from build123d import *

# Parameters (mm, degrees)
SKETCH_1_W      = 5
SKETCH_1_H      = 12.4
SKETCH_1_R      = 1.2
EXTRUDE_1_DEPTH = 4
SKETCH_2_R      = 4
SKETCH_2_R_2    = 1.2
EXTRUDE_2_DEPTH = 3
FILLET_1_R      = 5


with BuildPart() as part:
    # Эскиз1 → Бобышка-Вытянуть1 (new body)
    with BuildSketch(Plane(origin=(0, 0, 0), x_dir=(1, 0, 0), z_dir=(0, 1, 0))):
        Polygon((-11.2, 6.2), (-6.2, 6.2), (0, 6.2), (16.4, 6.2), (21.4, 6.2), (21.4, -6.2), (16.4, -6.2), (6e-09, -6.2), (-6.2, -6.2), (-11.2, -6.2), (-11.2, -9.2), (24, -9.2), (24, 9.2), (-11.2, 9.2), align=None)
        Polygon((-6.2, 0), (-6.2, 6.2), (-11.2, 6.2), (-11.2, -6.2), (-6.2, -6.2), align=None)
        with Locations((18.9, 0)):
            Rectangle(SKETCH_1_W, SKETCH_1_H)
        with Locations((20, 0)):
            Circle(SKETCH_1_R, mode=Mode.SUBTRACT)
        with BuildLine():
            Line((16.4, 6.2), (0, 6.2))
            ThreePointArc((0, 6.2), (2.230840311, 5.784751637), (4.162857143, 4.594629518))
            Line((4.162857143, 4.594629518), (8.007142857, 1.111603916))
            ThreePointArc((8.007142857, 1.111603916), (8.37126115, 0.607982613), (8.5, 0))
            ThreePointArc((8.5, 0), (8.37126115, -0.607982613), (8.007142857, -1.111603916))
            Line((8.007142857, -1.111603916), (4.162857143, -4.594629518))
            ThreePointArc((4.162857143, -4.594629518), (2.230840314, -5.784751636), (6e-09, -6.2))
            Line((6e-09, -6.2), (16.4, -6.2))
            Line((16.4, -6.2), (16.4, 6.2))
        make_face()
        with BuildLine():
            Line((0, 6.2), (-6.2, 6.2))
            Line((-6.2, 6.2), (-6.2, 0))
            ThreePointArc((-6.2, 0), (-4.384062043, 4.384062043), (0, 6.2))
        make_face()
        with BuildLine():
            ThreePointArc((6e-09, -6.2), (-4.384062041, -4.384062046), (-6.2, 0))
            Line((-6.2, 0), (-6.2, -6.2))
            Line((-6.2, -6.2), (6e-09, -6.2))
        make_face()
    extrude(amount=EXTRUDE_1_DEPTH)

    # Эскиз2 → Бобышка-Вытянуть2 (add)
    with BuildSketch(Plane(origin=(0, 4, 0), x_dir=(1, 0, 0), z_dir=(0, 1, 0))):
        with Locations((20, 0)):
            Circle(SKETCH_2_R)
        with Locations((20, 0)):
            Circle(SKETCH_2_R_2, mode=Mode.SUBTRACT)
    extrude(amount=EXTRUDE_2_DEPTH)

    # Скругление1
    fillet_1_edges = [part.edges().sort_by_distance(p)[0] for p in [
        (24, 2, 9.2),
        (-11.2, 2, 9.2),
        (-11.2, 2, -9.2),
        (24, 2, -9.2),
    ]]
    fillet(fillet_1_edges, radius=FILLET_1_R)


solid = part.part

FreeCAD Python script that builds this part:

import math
import FreeCAD as App
import Part
import Sketcher
Q = App.Units.Quantity


def edges_at(feature, points):
    """Names of the edges that pass closest to the given points."""
    edges = feature.Shape.Edges
    near = lambda p: min(range(len(edges)), key=lambda i: edges[i].distToShape(Part.Vertex(*p))[0])
    return sorted({f"Edge{near(p) + 1}" for p in points})


def add_polygon(sketch, points):
    """Adds a closed chain of lines whose ends are joined by coincident constraints."""
    first, n = sketch.GeometryCount, len(points)
    for a, b in zip(points, points[1:] + points[:1]):
        sketch.addGeometry(Part.LineSegment(App.Vector(*a, 0), App.Vector(*b, 0)), False)
    for i in range(n):
        sketch.addConstraint(Sketcher.Constraint("Coincident", first + i, 2, first + (i + 1) % n, 1))

doc = App.newDocument("Part")
body = doc.addObject("PartDesign::Body", "Body")

# Sketch on XZ plane
sketch1 = body.newObject("Sketcher::SketchObject", "Sketch")
sketch1.AttachmentSupport = (doc.getObject("XZ_Plane"), [""])
sketch1.MapMode = "FlatFace"
add_polygon(sketch1, [(-11.2, 9.2), (24, 9.2), (24, -9.2), (-11.2, -9.2)])  # lines 0-3
sketch1.addGeometry(Part.ArcOfCircle(Part.Circle(App.Vector(0, 0, 0), App.Vector(0, 0, 1), 6.2), math.radians(-90), math.radians(-47.822581)), False)  # 4
sketch1.addGeometry(Part.LineSegment(App.Vector(4.162857, -4.59463, 0), App.Vector(8.007143, -1.111604, 0)), False)  # 5
sketch1.addGeometry(Part.ArcOfCircle(Part.Circle(App.Vector(7, 0, 0), App.Vector(0, 0, 1), 1.5), math.radians(-47.822581), math.radians(0)), False)  # 6
sketch1.addGeometry(Part.ArcOfCircle(Part.Circle(App.Vector(7, 0, 0), App.Vector(0, 0, 1), 1.5), math.radians(0), math.radians(47.822581)), False)  # 7
sketch1.addGeometry(Part.LineSegment(App.Vector(8.007143, 1.111604, 0), App.Vector(4.162857, 4.59463, 0)), False)  # 8
sketch1.addGeometry(Part.ArcOfCircle(Part.Circle(App.Vector(0, 0, 0), App.Vector(0, 0, 1), 6.2), math.radians(47.822581), math.radians(90)), False)  # 9
sketch1.addGeometry(Part.ArcOfCircle(Part.Circle(App.Vector(0, 0, 0), App.Vector(0, 0, 1), 6.2), math.radians(90), math.radians(180)), False)  # 10
sketch1.addGeometry(Part.ArcOfCircle(Part.Circle(App.Vector(0, 0, 0), App.Vector(0, 0, 1), 6.2), math.radians(-180), math.radians(-90)), False)  # 11
sketch1.addGeometry(Part.Circle(App.Vector(20, 0, 0), App.Vector(0, 0, 1), 1.2), False)  # 12
sketch1.addConstraint([
    Sketcher.Constraint("Tangent", 4, 2, 5, 1),
    Sketcher.Constraint("Tangent", 5, 2, 6, 1),
    Sketcher.Constraint("Tangent", 6, 2, 7, 1),
    Sketcher.Constraint("Tangent", 7, 2, 8, 1),
    Sketcher.Constraint("Tangent", 8, 2, 9, 1),
    Sketcher.Constraint("Tangent", 9, 2, 10, 1),
    Sketcher.Constraint("Tangent", 10, 2, 11, 1),
    Sketcher.Constraint("Tangent", 11, 2, 4, 1),
    Sketcher.Constraint("Horizontal", 0),
    Sketcher.Constraint("Vertical", 1),
    Sketcher.Constraint("Horizontal", 2),
    Sketcher.Constraint("Vertical", 3),
    Sketcher.Constraint("Coincident", 4, 3, -1, 1),
    Sketcher.Constraint("Coincident", 9, 3, -1, 1),
    Sketcher.Constraint("Equal", 6, 7),
    Sketcher.Constraint("Equal", 4, 9),
    Sketcher.Constraint("PointOnObject", 6, 3, -1),
    Sketcher.Constraint("PointOnObject", 12, 3, -1),
    Sketcher.Constraint("PointOnObject", 6, 2, -1),
    Sketcher.Constraint("PointOnObject", 9, 2, -2),
    Sketcher.Constraint("PointOnObject", 10, 2, -1),
    Sketcher.Constraint("PointOnObject", 11, 2, -2),
    Sketcher.Constraint("Diameter", 12, Q("2.4 mm")),
    Sketcher.Constraint("Radius", 4, Q("6.2 mm")),
    Sketcher.Constraint("Radius", 6, Q("1.5 mm")),
    Sketcher.Constraint("DistanceX", 0, 1, 0, 2, Q("35.2 mm")),
    Sketcher.Constraint("DistanceY", 1, 2, 1, 1, Q("18.4 mm")),
    Sketcher.Constraint("DistanceX", -1, 1, 6, 3, Q("7 mm")),
    Sketcher.Constraint("DistanceX", -1, 1, 12, 3, Q("20 mm")),
    Sketcher.Constraint("DistanceX", -1, 1, 0, 2, Q("24 mm")),
    Sketcher.Constraint("DistanceY", -1, 1, 0, 2, Q("9.2 mm")),
])
pad1 = body.newObject("PartDesign::Pad", "Pad")
pad1.Profile = sketch1
pad1.Length = 4
pad1.Reversed = True

# Sketch on XZ plane
sketch2 = body.newObject("Sketcher::SketchObject", "Sketch001")
sketch2.AttachmentSupport = (doc.getObject("XZ_Plane"), [""])
sketch2.MapMode = "FlatFace"
sketch2.AttachmentOffset = App.Placement(App.Vector(0, 0, -4), App.Rotation())
sketch2.addGeometry([
    Part.Circle(App.Vector(20, 0, 0), App.Vector(0, 0, 1), 4),
    Part.Circle(App.Vector(20, 0, 0), App.Vector(0, 0, 1), 1.2),
], False)
sketch2.addConstraint([
    Sketcher.Constraint("Coincident", 1, 3, 0, 3),
    Sketcher.Constraint("PointOnObject", 0, 3, -1),
    Sketcher.Constraint("Diameter", 0, Q("8 mm")),
    Sketcher.Constraint("Diameter", 1, Q("2.4 mm")),
    Sketcher.Constraint("DistanceX", -1, 1, 0, 3, Q("20 mm")),
])
pad2 = body.newObject("PartDesign::Pad", "Pad001")
pad2.Profile = sketch2
pad2.Length = 3
pad2.Reversed = True
doc.recompute()

fillet = body.newObject("PartDesign::Fillet", "Fillet")
fillet.Base = (pad2, edges_at(pad2, [
    (24, 2, 9.2),
    (-11.2, 2, 9.2),
    (-11.2, 2, -9.2),
    (24, 2, -9.2),
]))
fillet.Radius = 5

doc.recompute()
